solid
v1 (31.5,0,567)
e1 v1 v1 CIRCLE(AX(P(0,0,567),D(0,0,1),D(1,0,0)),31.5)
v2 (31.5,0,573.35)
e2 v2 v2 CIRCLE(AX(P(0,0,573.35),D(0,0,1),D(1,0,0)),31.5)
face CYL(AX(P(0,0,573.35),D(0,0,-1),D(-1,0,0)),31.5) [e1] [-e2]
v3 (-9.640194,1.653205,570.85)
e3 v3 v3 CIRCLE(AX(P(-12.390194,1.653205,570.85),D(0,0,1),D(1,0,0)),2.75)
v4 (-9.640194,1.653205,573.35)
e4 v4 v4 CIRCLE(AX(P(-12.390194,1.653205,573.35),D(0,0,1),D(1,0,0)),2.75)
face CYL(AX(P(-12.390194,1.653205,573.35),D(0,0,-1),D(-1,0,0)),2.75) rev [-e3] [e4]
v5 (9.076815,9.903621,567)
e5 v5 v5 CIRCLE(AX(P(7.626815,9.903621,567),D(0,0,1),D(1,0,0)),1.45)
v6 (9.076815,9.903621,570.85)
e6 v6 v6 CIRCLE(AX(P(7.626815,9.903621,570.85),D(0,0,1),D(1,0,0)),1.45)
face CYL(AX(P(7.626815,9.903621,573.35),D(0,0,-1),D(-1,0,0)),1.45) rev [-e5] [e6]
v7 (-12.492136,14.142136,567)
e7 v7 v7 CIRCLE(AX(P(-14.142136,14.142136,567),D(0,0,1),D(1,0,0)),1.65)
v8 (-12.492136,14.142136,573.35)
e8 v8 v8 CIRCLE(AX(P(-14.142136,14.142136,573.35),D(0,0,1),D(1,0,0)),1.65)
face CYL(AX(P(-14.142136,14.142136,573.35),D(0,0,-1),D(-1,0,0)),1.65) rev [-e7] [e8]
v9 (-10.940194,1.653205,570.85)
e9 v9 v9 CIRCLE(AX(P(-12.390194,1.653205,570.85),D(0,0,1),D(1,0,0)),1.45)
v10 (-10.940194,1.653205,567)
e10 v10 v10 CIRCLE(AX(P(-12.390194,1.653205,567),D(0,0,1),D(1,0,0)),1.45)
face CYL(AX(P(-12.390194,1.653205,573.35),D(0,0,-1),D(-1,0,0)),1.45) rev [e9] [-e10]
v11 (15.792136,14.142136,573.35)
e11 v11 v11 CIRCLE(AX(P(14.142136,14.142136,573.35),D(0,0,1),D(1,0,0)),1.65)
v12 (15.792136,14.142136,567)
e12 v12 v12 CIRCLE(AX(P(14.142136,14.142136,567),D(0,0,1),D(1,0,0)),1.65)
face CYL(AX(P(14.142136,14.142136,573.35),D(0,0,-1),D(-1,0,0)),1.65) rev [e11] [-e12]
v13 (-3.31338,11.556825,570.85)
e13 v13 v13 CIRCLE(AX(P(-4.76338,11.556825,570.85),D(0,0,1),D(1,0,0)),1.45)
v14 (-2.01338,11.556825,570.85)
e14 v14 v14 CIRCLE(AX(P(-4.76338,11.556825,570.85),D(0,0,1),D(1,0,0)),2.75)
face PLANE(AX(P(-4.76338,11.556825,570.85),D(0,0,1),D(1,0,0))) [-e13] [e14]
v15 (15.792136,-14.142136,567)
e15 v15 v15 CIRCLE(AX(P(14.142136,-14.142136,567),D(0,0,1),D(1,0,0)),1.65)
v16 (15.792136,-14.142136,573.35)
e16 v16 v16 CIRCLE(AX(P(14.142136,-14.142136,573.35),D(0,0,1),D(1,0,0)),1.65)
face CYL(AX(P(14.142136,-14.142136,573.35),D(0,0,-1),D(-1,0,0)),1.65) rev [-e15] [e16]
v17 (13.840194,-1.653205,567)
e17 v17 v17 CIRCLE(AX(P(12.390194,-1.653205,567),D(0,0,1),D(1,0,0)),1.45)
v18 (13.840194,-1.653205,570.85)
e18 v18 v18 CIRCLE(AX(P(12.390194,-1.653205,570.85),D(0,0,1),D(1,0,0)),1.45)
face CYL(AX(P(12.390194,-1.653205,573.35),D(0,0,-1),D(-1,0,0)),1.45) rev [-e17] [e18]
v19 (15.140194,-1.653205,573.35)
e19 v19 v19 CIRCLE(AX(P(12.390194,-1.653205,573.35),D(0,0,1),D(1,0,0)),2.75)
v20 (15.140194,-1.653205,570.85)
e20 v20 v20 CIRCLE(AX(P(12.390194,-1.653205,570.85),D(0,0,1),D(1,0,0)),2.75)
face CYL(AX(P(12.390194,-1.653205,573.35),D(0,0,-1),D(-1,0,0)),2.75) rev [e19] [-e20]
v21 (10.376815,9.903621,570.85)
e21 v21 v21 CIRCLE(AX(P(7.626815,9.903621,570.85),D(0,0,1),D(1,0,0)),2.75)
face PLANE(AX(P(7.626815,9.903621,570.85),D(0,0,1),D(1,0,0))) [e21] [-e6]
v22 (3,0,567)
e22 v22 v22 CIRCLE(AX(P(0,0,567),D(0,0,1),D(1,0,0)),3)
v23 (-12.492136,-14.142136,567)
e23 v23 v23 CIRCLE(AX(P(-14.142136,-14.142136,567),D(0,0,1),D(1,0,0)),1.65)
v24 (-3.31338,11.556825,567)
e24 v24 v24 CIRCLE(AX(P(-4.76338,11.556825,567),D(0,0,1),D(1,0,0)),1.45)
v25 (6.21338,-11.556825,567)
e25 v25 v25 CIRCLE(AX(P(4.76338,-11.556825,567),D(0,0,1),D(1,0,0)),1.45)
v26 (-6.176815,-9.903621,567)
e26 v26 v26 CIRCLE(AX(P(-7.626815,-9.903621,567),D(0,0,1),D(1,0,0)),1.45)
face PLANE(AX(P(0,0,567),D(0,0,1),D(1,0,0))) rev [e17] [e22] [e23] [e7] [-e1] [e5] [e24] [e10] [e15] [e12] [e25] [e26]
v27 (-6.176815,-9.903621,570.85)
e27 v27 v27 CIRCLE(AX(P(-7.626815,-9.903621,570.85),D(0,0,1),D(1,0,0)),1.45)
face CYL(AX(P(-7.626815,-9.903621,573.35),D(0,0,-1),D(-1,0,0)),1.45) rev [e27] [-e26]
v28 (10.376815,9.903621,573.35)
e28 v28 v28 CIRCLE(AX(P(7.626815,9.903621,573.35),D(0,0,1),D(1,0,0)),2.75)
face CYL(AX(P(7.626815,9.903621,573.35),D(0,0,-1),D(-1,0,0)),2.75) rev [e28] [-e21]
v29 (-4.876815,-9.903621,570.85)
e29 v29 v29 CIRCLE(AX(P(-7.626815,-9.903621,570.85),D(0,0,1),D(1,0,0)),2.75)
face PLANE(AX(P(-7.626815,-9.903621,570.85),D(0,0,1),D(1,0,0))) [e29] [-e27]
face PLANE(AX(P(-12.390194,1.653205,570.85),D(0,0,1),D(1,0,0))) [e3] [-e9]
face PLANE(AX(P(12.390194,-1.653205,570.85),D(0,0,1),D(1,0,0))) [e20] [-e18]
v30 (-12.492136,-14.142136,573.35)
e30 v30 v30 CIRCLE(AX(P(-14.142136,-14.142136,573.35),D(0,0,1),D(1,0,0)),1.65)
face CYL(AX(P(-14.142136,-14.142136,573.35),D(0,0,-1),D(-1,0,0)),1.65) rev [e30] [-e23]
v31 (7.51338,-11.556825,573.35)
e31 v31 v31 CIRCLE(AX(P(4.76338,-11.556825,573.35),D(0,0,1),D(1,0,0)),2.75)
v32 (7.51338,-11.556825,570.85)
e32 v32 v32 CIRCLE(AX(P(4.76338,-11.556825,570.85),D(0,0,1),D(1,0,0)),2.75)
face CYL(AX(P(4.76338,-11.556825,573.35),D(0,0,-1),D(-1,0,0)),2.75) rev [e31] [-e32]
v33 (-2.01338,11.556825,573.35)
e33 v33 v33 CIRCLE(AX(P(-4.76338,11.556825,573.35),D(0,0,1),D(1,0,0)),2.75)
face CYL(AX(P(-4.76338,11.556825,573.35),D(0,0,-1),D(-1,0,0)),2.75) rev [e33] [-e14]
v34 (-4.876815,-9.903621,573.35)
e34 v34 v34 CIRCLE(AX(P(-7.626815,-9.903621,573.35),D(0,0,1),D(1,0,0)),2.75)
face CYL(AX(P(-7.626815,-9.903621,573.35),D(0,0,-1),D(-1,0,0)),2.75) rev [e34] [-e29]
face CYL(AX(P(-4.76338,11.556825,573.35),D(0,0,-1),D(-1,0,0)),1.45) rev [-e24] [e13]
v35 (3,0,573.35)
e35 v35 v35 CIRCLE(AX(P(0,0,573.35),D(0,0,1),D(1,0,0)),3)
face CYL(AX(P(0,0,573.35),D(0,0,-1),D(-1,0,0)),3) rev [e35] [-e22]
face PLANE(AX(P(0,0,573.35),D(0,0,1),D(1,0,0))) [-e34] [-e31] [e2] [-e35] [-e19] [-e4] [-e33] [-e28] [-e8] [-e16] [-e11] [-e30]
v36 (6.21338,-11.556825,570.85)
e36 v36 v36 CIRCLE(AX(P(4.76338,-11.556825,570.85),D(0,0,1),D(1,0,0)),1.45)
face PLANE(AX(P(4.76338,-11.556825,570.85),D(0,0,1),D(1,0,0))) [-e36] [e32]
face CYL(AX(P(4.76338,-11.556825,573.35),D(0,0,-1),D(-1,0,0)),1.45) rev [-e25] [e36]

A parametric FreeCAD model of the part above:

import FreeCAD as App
import Part
import Sketcher

V = App.Vector
Q = App.Units.Quantity

doc = App.newDocument("Part")
body = doc.addObject("PartDesign::Body", "Body")

sketch1 = body.newObject("Sketcher::SketchObject", "Sketch")
sketch1.AttachmentSupport = (doc.getObject("XY_Plane"), [""])
sketch1.MapMode = "FlatFace"
sketch1.AttachmentOffset = App.Placement(V(0, 0, 567), App.Rotation())
sketch1.addGeometry(Part.Circle(V(0, 0, 0), V(0, 0, 1), 32), False)
sketch1.addConstraint([
    Sketcher.Constraint("Coincident", 0, 3, -1, 1),
    Sketcher.Constraint("Diameter", 0, Q("63 mm")),
])
pad1 = body.newObject("PartDesign::Pad", "Pad")
pad1.Profile = sketch1
pad1.Length = 6.35

sketch2 = body.newObject("Sketcher::SketchObject", "Sketch001")
sketch2.AttachmentSupport = (doc.getObject("XY_Plane"), [""])
sketch2.MapMode = "FlatFace"
sketch2.AttachmentOffset = App.Placement(V(0, 0, 567), App.Rotation())
sketch2.addGeometry(Part.Circle(V(0, 0, 0), V(0, 0, 1), 3), False)
sketch2.addConstraint([
    Sketcher.Constraint("Coincident", 0, 3, -1, 1),
    Sketcher.Constraint("Diameter", 0, Q("6 mm")),
])
pocket1 = body.newObject("PartDesign::Pocket", "Pocket")
pocket1.Profile = sketch2
pocket1.Length = 6.35
pocket1.Reversed = True

sketch3 = body.newObject("Sketcher::SketchObject", "Sketch002")
sketch3.AttachmentSupport = (doc.getObject("XY_Plane"), [""])
sketch3.MapMode = "FlatFace"
sketch3.AttachmentOffset = App.Placement(V(0, 0, 567), App.Rotation())
sketch3.addGeometry([
    Part.Circle(V(14.1, 14.1, 0), V(0, 0, 1), 1.6),
    Part.Circle(V(-14.1, 14.1, 0), V(0, 0, 1), 1.6),
    Part.Circle(V(-14.1, -14.1, 0), V(0, 0, 1), 1.6),
    Part.Circle(V(14.1, -14.1, 0), V(0, 0, 1), 1.6),
], False)
sketch3.addConstraint([
    Sketcher.Constraint("Equal", 0, 1),
    Sketcher.Constraint("Equal", 1, 2),
    Sketcher.Constraint("Equal", 2, 3),
    Sketcher.Constraint("Symmetric", 0, 3, 2, 3, -1, 1),
    Sketcher.Constraint("Symmetric", 1, 3, 3, 3, -1, 1),
    Sketcher.Constraint("Symmetric", 0, 3, 1, 3, -2),
    Sketcher.Constraint("Diameter", 0, Q("3.3 mm")),
    Sketcher.Constraint("DistanceX", 1, 3, 0, 3, Q("28.284271 mm")),
    Sketcher.Constraint("DistanceY", 2, 3, 1, 3, Q("28.284271 mm")),
])
pocket2 = body.newObject("PartDesign::Pocket", "Pocket001")
pocket2.Profile = sketch3
pocket2.Length = 6.35
pocket2.Reversed = True

sketch4 = body.newObject("Sketcher::SketchObject", "Sketch003")
sketch4.AttachmentSupport = (doc.getObject("XY_Plane"), [""])
sketch4.MapMode = "FlatFace"
sketch4.AttachmentOffset = App.Placement(V(0, 0, 567), App.Rotation())
sketch4.addGeometry([
    Part.Circle(V(12.4, -1.7, 0), V(0, 0, 1), 1.4),
    Part.Circle(V(7.6, 9.9, 0), V(0, 0, 1), 1.4),
    Part.Circle(V(-4.8, 11.6, 0), V(0, 0, 1), 1.4),
    Part.Circle(V(-12.4, 1.7, 0), V(0, 0, 1), 1.4),
    Part.Circle(V(-7.6, -9.9, 0), V(0, 0, 1), 1.4),
    Part.Circle(V(4.8, -11.6, 0), V(0, 0, 1), 1.4),
], False)
sketch4.addConstraint([
    Sketcher.Constraint("Equal", 0, 1),
    Sketcher.Constraint("Equal", 1, 2),
    Sketcher.Constraint("Equal", 2, 3),
    Sketcher.Constraint("Equal", 3, 4),
    Sketcher.Constraint("Equal", 4, 5),
    Sketcher.Constraint("Symmetric", 0, 3, 3, 3, -1, 1),
    Sketcher.Constraint("Symmetric", 1, 3, 4, 3, -1, 1),
    Sketcher.Constraint("Symmetric", 2, 3, 5, 3, -1, 1),
    Sketcher.Constraint("Diameter", 0, Q("2.9 mm")),
    Sketcher.Constraint("DistanceY", -1, 1, 1, 3, Q("9.903621 mm")),
    Sketcher.Constraint("DistanceX", 2, 3, -1, 1, Q("4.76338 mm")),
    Sketcher.Constraint("DistanceX", 1, 3, 0, 3, Q("4.76338 mm")),
    Sketcher.Constraint("DistanceY", 0, 3, 2, 3, Q("13.21003 mm")),
    Sketcher.Constraint("DistanceY", 3, 3, 2, 3, Q("9.903621 mm")),
    Sketcher.Constraint("DistanceX", 3, 3, 1, 3, Q("20.017009 mm")),
])
pocket3 = body.newObject("PartDesign::Pocket", "Pocket002")
pocket3.Profile = sketch4
pocket3.Length = 6.35
pocket3.Reversed = True

sketch5 = body.newObject("Sketcher::SketchObject", "Sketch004")
sketch5.AttachmentSupport = (doc.getObject("XY_Plane"), [""])
sketch5.MapMode = "FlatFace"
sketch5.AttachmentOffset = App.Placement(V(0, 0, 570.85), App.Rotation())
sketch5.addGeometry([
    Part.Circle(V(12.4, -1.7, 0), V(0, 0, 1), 2.8),
    Part.Circle(V(7.6, 9.9, 0), V(0, 0, 1), 2.8),
    Part.Circle(V(-4.8, 11.6, 0), V(0, 0, 1), 2.8),
    Part.Circle(V(-12.4, 1.7, 0), V(0, 0, 1), 2.8),
    Part.Circle(V(-7.6, -9.9, 0), V(0, 0, 1), 2.8),
    Part.Circle(V(4.8, -11.6, 0), V(0, 0, 1), 2.8),
], False)
sketch5.addConstraint([
    Sketcher.Constraint("Equal", 0, 1),
    Sketcher.Constraint("Equal", 1, 2),
    Sketcher.Constraint("Equal", 2, 3),
    Sketcher.Constraint("Equal", 3, 4),
    Sketcher.Constraint("Equal", 4, 5),
    Sketcher.Constraint("Symmetric", 0, 3, 3, 3, -1, 1),
    Sketcher.Constraint("Symmetric", 1, 3, 4, 3, -1, 1),
    Sketcher.Constraint("Symmetric", 2, 3, 5, 3, -1, 1),
    Sketcher.Constraint("Diameter", 0, Q("5.5 mm")),
    Sketcher.Constraint("DistanceY", -1, 1, 1, 3, Q("9.903621 mm")),
    Sketcher.Constraint("DistanceX", 2, 3, -1, 1, Q("4.76338 mm")),
    Sketcher.Constraint("DistanceX", 1, 3, 0, 3, Q("4.76338 mm")),
    Sketcher.Constraint("DistanceY", 0, 3, 2, 3, Q("13.21003 mm")),
    Sketcher.Constraint("DistanceY", 3, 3, 2, 3, Q("9.903621 mm")),
    Sketcher.Constraint("DistanceX", 3, 3, 1, 3, Q("20.017009 mm")),
])
pocket4 = body.newObject("PartDesign::Pocket", "Pocket003")
pocket4.Profile = sketch5
pocket4.Length = 2.5
pocket4.Reversed = True

doc.recompute()
